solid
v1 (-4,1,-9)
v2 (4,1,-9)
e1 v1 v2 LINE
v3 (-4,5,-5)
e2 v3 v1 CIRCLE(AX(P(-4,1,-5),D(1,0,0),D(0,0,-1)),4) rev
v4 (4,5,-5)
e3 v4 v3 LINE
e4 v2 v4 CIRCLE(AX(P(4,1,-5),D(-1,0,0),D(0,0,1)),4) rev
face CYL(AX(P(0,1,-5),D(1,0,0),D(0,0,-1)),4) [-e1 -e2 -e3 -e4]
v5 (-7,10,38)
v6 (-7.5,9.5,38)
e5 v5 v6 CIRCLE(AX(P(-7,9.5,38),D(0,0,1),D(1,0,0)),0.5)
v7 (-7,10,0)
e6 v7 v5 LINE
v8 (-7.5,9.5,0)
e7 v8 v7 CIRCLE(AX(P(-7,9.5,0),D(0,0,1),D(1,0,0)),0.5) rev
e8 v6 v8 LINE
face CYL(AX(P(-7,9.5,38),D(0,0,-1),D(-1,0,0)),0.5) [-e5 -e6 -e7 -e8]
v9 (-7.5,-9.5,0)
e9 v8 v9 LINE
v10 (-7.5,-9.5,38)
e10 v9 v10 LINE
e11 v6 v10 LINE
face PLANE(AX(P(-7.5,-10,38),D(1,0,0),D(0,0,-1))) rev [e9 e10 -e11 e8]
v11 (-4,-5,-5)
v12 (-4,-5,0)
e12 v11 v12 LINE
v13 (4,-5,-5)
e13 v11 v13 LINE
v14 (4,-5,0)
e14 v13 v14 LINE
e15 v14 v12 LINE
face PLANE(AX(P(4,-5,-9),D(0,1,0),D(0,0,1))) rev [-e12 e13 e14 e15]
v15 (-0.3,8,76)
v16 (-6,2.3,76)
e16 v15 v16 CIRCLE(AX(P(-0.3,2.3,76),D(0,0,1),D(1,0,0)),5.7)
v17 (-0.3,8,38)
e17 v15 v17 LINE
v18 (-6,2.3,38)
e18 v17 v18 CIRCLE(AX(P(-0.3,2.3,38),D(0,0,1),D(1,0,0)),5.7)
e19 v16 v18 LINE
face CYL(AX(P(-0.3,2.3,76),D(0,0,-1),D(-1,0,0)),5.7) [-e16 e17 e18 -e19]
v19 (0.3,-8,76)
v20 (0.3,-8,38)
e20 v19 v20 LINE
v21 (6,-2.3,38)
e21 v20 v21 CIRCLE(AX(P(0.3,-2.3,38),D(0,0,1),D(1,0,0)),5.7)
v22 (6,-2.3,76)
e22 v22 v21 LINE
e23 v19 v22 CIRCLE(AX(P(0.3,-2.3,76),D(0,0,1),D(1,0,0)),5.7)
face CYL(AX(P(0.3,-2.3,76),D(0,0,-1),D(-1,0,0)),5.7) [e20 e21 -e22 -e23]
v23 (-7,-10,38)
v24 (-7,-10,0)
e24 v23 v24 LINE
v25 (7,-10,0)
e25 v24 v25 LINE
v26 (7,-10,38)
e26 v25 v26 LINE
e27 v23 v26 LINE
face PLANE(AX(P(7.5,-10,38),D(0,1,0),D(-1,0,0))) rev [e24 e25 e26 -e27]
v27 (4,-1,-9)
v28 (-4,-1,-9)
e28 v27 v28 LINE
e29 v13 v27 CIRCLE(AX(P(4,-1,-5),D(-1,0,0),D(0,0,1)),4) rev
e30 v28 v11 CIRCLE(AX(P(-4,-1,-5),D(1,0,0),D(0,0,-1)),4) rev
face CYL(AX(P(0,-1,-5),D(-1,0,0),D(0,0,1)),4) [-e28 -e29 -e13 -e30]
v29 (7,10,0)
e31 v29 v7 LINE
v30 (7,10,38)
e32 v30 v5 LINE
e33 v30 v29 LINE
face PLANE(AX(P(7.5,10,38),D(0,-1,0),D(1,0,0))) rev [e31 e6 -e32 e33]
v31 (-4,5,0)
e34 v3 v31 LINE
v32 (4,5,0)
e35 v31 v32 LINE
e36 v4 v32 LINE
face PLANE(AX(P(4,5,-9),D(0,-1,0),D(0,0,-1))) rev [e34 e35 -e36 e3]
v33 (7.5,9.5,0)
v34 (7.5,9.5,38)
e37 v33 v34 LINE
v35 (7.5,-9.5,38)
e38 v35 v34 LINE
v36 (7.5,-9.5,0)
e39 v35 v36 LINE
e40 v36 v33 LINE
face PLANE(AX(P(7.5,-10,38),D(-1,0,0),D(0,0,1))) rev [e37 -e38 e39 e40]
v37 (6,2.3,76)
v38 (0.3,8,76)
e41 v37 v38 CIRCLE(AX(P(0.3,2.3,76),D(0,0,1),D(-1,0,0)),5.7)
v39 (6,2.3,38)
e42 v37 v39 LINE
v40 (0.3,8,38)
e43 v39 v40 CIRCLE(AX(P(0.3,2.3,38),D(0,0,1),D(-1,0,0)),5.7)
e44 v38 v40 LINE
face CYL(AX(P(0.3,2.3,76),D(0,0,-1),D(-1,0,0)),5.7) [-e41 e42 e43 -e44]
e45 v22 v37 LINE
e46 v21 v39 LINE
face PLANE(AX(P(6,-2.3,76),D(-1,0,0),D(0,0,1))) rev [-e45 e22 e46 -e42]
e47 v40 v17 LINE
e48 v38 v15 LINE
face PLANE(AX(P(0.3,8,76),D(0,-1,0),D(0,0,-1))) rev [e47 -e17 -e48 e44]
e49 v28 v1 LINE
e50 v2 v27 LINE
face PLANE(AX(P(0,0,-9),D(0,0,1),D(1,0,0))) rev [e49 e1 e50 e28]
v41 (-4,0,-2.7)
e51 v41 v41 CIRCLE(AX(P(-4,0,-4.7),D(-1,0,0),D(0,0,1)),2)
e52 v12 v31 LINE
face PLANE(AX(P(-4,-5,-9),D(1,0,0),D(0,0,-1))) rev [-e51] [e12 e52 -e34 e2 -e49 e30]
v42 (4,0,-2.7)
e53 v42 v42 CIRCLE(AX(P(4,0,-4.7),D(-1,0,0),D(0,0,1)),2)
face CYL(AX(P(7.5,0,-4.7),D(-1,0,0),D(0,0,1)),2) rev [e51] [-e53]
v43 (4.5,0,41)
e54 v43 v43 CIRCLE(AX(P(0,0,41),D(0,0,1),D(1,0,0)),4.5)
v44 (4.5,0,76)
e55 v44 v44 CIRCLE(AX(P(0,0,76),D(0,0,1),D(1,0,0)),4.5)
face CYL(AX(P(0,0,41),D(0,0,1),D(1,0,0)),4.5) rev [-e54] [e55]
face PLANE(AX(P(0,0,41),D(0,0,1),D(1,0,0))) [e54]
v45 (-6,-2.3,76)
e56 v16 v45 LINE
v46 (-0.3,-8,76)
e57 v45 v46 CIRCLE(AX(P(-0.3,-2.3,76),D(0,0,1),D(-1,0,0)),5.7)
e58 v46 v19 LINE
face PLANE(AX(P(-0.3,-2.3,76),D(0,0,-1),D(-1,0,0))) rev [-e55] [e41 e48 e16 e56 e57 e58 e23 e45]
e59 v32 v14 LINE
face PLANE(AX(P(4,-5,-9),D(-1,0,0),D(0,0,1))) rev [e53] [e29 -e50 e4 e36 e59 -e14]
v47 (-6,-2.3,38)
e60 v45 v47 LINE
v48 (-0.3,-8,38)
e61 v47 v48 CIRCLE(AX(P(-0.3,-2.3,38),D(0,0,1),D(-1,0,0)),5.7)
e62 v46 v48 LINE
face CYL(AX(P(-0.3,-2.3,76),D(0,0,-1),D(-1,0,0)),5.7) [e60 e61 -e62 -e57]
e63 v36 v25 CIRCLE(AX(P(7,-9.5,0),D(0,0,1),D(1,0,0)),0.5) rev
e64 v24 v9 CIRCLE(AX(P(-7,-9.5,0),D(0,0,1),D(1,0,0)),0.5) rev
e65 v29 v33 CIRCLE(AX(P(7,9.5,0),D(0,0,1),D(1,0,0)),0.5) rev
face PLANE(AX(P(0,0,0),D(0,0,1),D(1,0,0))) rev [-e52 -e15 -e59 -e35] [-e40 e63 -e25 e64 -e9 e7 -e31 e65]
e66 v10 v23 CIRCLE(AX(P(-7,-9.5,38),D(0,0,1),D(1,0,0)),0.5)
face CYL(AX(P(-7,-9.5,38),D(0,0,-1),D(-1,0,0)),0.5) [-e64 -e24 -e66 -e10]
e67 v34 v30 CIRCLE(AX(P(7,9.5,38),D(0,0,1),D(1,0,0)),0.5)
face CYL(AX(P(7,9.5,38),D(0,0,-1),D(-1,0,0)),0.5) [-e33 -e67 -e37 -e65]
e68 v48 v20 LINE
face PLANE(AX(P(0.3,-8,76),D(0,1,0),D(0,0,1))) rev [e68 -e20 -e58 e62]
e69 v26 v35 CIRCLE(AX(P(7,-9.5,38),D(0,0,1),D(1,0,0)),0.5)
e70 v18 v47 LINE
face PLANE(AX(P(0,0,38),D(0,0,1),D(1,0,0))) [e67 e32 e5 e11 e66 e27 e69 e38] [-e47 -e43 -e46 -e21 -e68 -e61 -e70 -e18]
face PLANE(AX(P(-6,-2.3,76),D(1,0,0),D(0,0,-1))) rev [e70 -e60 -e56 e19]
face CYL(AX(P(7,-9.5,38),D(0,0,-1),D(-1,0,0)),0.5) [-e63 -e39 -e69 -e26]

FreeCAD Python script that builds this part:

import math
import FreeCAD as App
import Part
import Sketcher
from FreeCAD import Vector
Q = App.Units.Quantity


def edges_at(feature, points):
    """Names of the edges that pass closest to the given points."""
    edges = feature.Shape.Edges
    near = lambda p: min(range(len(edges)), key=lambda i: edges[i].distToShape(Part.Vertex(*p))[0])
    return sorted({f"Edge{near(p) + 1}" for p in points})

doc = App.newDocument("Part")
body = doc.addObject("PartDesign::Body", "Body")

# Sketch on XY plane
sketch1 = body.newObject("Sketcher::SketchObject", "Sketch")
sketch1.AttachmentSupport = (doc.getObject("XY_Plane"), [""])
sketch1.MapMode = "FlatFace"
sketch1.addGeometry([
    Part.LineSegment(Vector(-7.5, 10, 0), Vector(-7.5, -10, 0)),
    Part.LineSegment(Vector(-7.5, -10, 0), Vector(7.5, -10, 0)),
    Part.LineSegment(Vector(7.5, -10, 0), Vector(7.5, 10, 0)),
    Part.LineSegment(Vector(7.5, 10, 0), Vector(-7.5, 10, 0)),
], False)
sketch1.addConstraint([
    Sketcher.Constraint("Coincident", 0, 2, 1, 1),
    Sketcher.Constraint("Coincident", 1, 2, 2, 1),
    Sketcher.Constraint("Coincident", 2, 2, 3, 1),
    Sketcher.Constraint("Coincident", 3, 2, 0, 1),
    Sketcher.Constraint("Vertical", 0),
    Sketcher.Constraint("Horizontal", 1),
    Sketcher.Constraint("Vertical", 2),
    Sketcher.Constraint("Horizontal", 3),
    Sketcher.Constraint("Symmetric", 0, 2, 2, 2, -1, 1),
    Sketcher.Constraint("DistanceX", 1, 1, 1, 2, Q("15 mm")),
    Sketcher.Constraint("DistanceY", 0, 2, 0, 1, Q("20 mm")),
])
pad1 = body.newObject("PartDesign::Pad", "Pad")
pad1.Profile = sketch1
pad1.Length = 38

# Sketch on XY plane
sketch2 = body.newObject("Sketcher::SketchObject", "Sketch001")
sketch2.AttachmentSupport = (doc.getObject("XY_Plane"), [""])
sketch2.MapMode = "FlatFace"
sketch2.AttachmentOffset = App.Placement(Vector(0, 0, 38), App.Rotation())
sketch2.addGeometry([
    Part.LineSegment(Vector(-0.3, -8, 0), Vector(0.3, -8, 0)),  # 0
    Part.ArcOfCircle(Part.Circle(Vector(0.3, -2.3, 0), Vector(0, 0, 1), 5.7), math.radians(-90), math.radians(0)),  # 1
    Part.LineSegment(Vector(6, -2.3, 0), Vector(6, 2.3, 0)),  # 2
    Part.ArcOfCircle(Part.Circle(Vector(0.3, 2.3, 0), Vector(0, 0, 1), 5.7), math.radians(0), math.radians(90)),  # 3
    Part.LineSegment(Vector(0.3, 8, 0), Vector(-0.3, 8, 0)),  # 4
    Part.ArcOfCircle(Part.Circle(Vector(-0.3, 2.3, 0), Vector(0, 0, 1), 5.7), math.radians(90), math.radians(180)),  # 5
    Part.LineSegment(Vector(-6, 2.3, 0), Vector(-6, -2.3, 0)),  # 6
    Part.ArcOfCircle(Part.Circle(Vector(-0.3, -2.3, 0), Vector(0, 0, 1), 5.7), math.radians(180), math.radians(270)),  # 7
], False)
sketch2.addConstraint([
    Sketcher.Constraint("Tangent", 0, 2, 1, 1),
    Sketcher.Constraint("Tangent", 1, 2, 2, 1),
    Sketcher.Constraint("Tangent", 2, 2, 3, 1),
    Sketcher.Constraint("Tangent", 3, 2, 4, 1),
    Sketcher.Constraint("Tangent", 4, 2, 5, 1),
    Sketcher.Constraint("Tangent", 5, 2, 6, 1),
    Sketcher.Constraint("Tangent", 6, 2, 7, 1),
    Sketcher.Constraint("Tangent", 7, 2, 0, 1),
    Sketcher.Constraint("Horizontal", 0),
    Sketcher.Constraint("Vertical", 2),
    Sketcher.Constraint("Horizontal", 4),
    Sketcher.Constraint("Vertical", 6),
    Sketcher.Constraint("Equal", 1, 3),
    Sketcher.Constraint("Equal", 3, 5),
    Sketcher.Constraint("Equal", 5, 7),
    Sketcher.Constraint("Symmetric", 1, 3, 5, 3, -1, 1),
    Sketcher.Constraint("Radius", 1, Q("5.7 mm")),
    Sketcher.Constraint("DistanceX", 0, 1, 0, 2, Q("0.6 mm")),
    Sketcher.Constraint("DistanceY", 2, 1, 2, 2, Q("4.6 mm")),
])
pad2 = body.newObject("PartDesign::Pad", "Pad001")
pad2.Profile = sketch2
pad2.Length = 38

# Sketch on XY plane
sketch3 = body.newObject("Sketcher::SketchObject", "Sketch002")
sketch3.AttachmentSupport = (doc.getObject("XY_Plane"), [""])
sketch3.MapMode = "FlatFace"
sketch3.addGeometry([
    Part.LineSegment(Vector(4, 5, 0), Vector(4, -5, 0)),
    Part.LineSegment(Vector(4, -5, 0), Vector(-4, -5, 0)),
    Part.LineSegment(Vector(-4, -5, 0), Vector(-4, 5, 0)),
    Part.LineSegment(Vector(-4, 5, 0), Vector(4, 5, 0)),
], False)
sketch3.addConstraint([
    Sketcher.Constraint("Coincident", 0, 2, 1, 1),
    Sketcher.Constraint("Coincident", 1, 2, 2, 1),
    Sketcher.Constraint("Coincident", 2, 2, 3, 1),
    Sketcher.Constraint("Coincident", 3, 2, 0, 1),
    Sketcher.Constraint("Vertical", 0),
    Sketcher.Constraint("Horizontal", 1),
    Sketcher.Constraint("Vertical", 2),
    Sketcher.Constraint("Horizontal", 3),
    Sketcher.Constraint("Symmetric", 0, 2, 2, 2, -1, 1),
    Sketcher.Constraint("DistanceX", 1, 2, 1, 1, Q("8 mm")),
    Sketcher.Constraint("DistanceY", 0, 2, 0, 1, Q("10 mm")),
])
pad3 = body.newObject("PartDesign::Pad", "Pad002")
pad3.Profile = sketch3
pad3.Length = 9
pad3.Reversed = True
doc.recompute()

fillet = body.newObject("PartDesign::Fillet", "Fillet")
fillet.Base = (pad3, edges_at(pad3, [(0, 5, -9), (0, -5, -9)]))
fillet.Radius = 4

# Sketch on YZ plane
sketch4 = body.newObject("Sketcher::SketchObject", "Sketch003")
sketch4.AttachmentSupport = (doc.getObject("YZ_Plane"), [""])
sketch4.MapMode = "FlatFace"
sketch4.AttachmentOffset = App.Placement(Vector(0, 0, -4), App.Rotation())
sketch4.addGeometry(Part.Circle(Vector(0, -4.7, 0), Vector(0, 0, 1), 2), False)
sketch4.addConstraint([
    Sketcher.Constraint("PointOnObject", 0, 3, -2),
    Sketcher.Constraint("Diameter", 0, Q("4 mm")),
    Sketcher.Constraint("DistanceY", 0, 3, -1, 1, Q("4.7 mm")),
])
pocket1 = body.newObject("PartDesign::Pocket", "Pocket")
pocket1.Profile = sketch4
pocket1.Type = "ThroughAll"
pocket1.Reversed = True
doc.recompute()

fillet2 = body.newObject("PartDesign::Fillet", "Fillet001")
fillet2.Base = (pocket1, edges_at(pocket1, [
    (-7.5, 10, 19),
    (7.5, 10, 19),
    (7.5, -10, 19),
    (-7.5, -10, 19),
]))
fillet2.Radius = 0.5

# Sketch on XY plane
sketch5 = body.newObject("Sketcher::SketchObject", "Sketch004")
sketch5.AttachmentSupport = (doc.getObject("XY_Plane"), [""])
sketch5.MapMode = "FlatFace"
sketch5.AttachmentOffset = App.Placement(Vector(0, 0, 76), App.Rotation())
sketch5.addGeometry(Part.Circle(Vector(0, 0, 0), Vector(0, 0, 1), 4.5), False)
sketch5.addConstraint([
    Sketcher.Constraint("Coincident", 0, 3, -1, 1),
    Sketcher.Constraint("Diameter", 0, Q("9 mm")),
])
pocket2 = body.newObject("PartDesign::Pocket", "Pocket001")
pocket2.Profile = sketch5
pocket2.Length = 35

doc.recompute()
